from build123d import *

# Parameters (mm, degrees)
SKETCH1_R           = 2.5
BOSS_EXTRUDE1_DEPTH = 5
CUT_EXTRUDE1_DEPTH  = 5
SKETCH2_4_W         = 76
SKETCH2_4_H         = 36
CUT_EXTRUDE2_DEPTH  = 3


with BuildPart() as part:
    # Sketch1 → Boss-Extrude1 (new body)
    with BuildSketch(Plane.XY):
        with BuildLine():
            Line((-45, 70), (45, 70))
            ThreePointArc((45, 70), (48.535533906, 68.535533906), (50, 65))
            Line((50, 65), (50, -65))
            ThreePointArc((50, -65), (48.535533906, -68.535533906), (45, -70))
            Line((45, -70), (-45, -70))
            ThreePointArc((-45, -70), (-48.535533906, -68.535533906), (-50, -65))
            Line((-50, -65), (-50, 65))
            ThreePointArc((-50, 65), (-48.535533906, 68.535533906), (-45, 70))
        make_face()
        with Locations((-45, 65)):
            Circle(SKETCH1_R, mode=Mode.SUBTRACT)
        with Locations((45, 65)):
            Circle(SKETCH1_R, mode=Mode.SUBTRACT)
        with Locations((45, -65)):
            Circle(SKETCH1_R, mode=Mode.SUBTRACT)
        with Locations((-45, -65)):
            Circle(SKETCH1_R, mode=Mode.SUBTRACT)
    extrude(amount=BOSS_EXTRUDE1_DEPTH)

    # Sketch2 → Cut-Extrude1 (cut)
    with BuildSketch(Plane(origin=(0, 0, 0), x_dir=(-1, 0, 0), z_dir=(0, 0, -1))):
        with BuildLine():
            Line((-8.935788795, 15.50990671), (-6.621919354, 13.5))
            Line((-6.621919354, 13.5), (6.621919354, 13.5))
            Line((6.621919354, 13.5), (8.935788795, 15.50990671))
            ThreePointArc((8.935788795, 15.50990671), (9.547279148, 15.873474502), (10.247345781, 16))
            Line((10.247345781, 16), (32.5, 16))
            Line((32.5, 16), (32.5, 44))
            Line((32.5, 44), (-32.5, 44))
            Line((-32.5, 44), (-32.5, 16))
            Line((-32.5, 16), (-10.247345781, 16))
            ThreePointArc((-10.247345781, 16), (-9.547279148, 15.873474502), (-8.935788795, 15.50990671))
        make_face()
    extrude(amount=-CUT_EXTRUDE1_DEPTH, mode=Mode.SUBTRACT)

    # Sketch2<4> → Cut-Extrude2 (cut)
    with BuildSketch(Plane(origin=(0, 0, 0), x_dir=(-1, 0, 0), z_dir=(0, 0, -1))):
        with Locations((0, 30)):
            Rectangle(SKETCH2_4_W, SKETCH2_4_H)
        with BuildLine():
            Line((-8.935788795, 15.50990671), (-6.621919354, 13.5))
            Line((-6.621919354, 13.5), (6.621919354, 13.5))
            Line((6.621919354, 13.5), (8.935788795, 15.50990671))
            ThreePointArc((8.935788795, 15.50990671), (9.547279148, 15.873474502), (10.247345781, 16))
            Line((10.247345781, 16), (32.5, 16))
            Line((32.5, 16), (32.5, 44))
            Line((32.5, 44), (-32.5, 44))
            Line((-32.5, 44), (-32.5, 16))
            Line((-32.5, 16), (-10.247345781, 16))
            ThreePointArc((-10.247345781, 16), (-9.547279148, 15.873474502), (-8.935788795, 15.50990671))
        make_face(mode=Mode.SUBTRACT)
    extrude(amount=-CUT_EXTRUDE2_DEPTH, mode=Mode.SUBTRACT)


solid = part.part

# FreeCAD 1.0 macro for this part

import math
import FreeCAD as App
import Part
import Sketcher

V = App.Vector


def add_polygon(sketch, points):
    """Adds a closed chain of lines whose ends are joined by coincident constraints."""
    first, n = sketch.GeometryCount, len(points)
    for a, b in zip(points, points[1:] + points[:1]):
        sketch.addGeometry(Part.LineSegment(App.Vector(*a, 0), App.Vector(*b, 0)), False)
    for i in range(n):
        sketch.addConstraint(Sketcher.Constraint("Coincident", first + i, 2, first + (i + 1) % n, 1))

doc = App.newDocument("Part")
body = doc.addObject("PartDesign::Body", "Body")

# Sketch on XY plane
sketch1 = body.newObject("Sketcher::SketchObject", "Sketch")
sketch1.AttachmentSupport = (doc.getObject("XY_Plane"), [""])
sketch1.MapMode = "FlatFace"
sketch1.addGeometry([
    Part.LineSegment(V(45, 70, 0), V(-45, 70, 0)),  # 0
    Part.ArcOfCircle(Part.Circle(V(-45, 65, 0), V(0, 0, 1), 5), math.radians(90), math.radians(180)),  # 1
    Part.LineSegment(V(-50, 65, 0), V(-50, -65, 0)),  # 2
    Part.ArcOfCircle(Part.Circle(V(-45, -65, 0), V(0, 0, 1), 5), math.radians(180), math.radians(270)),  # 3
    Part.LineSegment(V(-45, -70, 0), V(45, -70, 0)),  # 4
    Part.ArcOfCircle(Part.Circle(V(45, -65, 0), V(0, 0, 1), 5), math.radians(-90), math.radians(0)),  # 5
    Part.LineSegment(V(50, -65, 0), V(50, 65, 0)),  # 6
    Part.ArcOfCircle(Part.Circle(V(45, 65, 0), V(0, 0, 1), 5), math.radians(0), math.radians(90)),  # 7
    Part.Circle(V(45, -65, 0), V(0, 0, 1), 2.5),  # 8
    Part.Circle(V(-45, -65, 0), V(0, 0, 1), 2.5),  # 9
    Part.Circle(V(45, 65, 0), V(0, 0, 1), 2.5),  # 10
    Part.Circle(V(-45, 65, 0), V(0, 0, 1), 2.5),  # 11
], False)
sketch1.addConstraint([
    Sketcher.Constraint("Tangent", 0, 2, 1, 1),
    Sketcher.Constraint("Tangent", 1, 2, 2, 1),
    Sketcher.Constraint("Tangent", 2, 2, 3, 1),
    Sketcher.Constraint("Tangent", 3, 2, 4, 1),
    Sketcher.Constraint("Tangent", 4, 2, 5, 1),
    Sketcher.Constraint("Tangent", 5, 2, 6, 1),
    Sketcher.Constraint("Tangent", 6, 2, 7, 1),
    Sketcher.Constraint("Tangent", 7, 2, 0, 1),
    Sketcher.Constraint("Horizontal", 0),
    Sketcher.Constraint("Vertical", 2),
    Sketcher.Constraint("Horizontal", 4),
    Sketcher.Constraint("Vertical", 6),
    Sketcher.Constraint("Coincident", 8, 3, 5, 3),
    Sketcher.Constraint("Coincident", 9, 3, 3, 3),
    Sketcher.Constraint("Coincident", 10, 3, 7, 3),
    Sketcher.Constraint("Coincident", 11, 3, 1, 3),
    Sketcher.Constraint("Equal", 1, 3),
    Sketcher.Constraint("Equal", 3, 5),
    Sketcher.Constraint("Equal", 5, 7),
    Sketcher.Constraint("Equal", 8, 9),
    Sketcher.Constraint("Equal", 9, 10),
    Sketcher.Constraint("Equal", 10, 11),
    Sketcher.Constraint("Symmetric", 1, 3, 5, 3, -1, 1),
    Sketcher.Constraint("Diameter", 8, 5.0),
    Sketcher.Constraint("Radius", 1, 5.0),
    Sketcher.Constraint("DistanceX", 0, 2, 0, 1, 90.0),
    Sketcher.Constraint("DistanceY", 2, 2, 2, 1, 130.0),
])
pad1 = body.newObject("PartDesign::Pad", "Pad")
pad1.Profile = sketch1
pad1.Length = 5

# Sketch on XY plane
sketch2 = body.newObject("Sketcher::SketchObject", "Sketch001")
sketch2.AttachmentSupport = (doc.getObject("XY_Plane"), [""])
sketch2.MapMode = "FlatFace"
sketch2.addGeometry([
    Part.LineSegment(V(8.9, 15.5, 0), V(6.6, 13.5, 0)),  # 0
    Part.LineSegment(V(6.6, 13.5, 0), V(-6.6, 13.5, 0)),  # 1
    Part.LineSegment(V(-6.6, 13.5, 0), V(-8.9, 15.5, 0)),  # 2
    Part.ArcOfCircle(Part.Circle(V(-10.2, 14, 0), V(0, 0, 1), 2), math.radians(49), math.radians(90)),  # 3
    Part.LineSegment(V(-10.2, 16, 0), V(-32.5, 16, 0)),  # 4
    Part.LineSegment(V(-32.5, 16, 0), V(-32.5, 44, 0)),  # 5
    Part.LineSegment(V(-32.5, 44, 0), V(32.5, 44, 0)),  # 6
    Part.LineSegment(V(32.5, 44, 0), V(32.5, 16, 0)),  # 7
    Part.LineSegment(V(32.5, 16, 0), V(10.2, 16, 0)),  # 8
    Part.ArcOfCircle(Part.Circle(V(10.2, 14, 0), V(0, 0, 1), 2), math.radians(90), math.radians(131)),  # 9
], False)
sketch2.addConstraint([
    Sketcher.Constraint("Coincident", 0, 2, 1, 1),
    Sketcher.Constraint("Coincident", 1, 2, 2, 1),
    Sketcher.Constraint("Tangent", 2, 2, 3, 1),
    Sketcher.Constraint("Tangent", 3, 2, 4, 1),
    Sketcher.Constraint("Coincident", 4, 2, 5, 1),
    Sketcher.Constraint("Coincident", 5, 2, 6, 1),
    Sketcher.Constraint("Coincident", 6, 2, 7, 1),
    Sketcher.Constraint("Coincident", 7, 2, 8, 1),
    Sketcher.Constraint("Tangent", 8, 2, 9, 1),
    Sketcher.Constraint("Tangent", 9, 2, 0, 1),
    Sketcher.Constraint("Horizontal", 1),
    Sketcher.Constraint("Horizontal", 4),
    Sketcher.Constraint("Vertical", 5),
    Sketcher.Constraint("Horizontal", 6),
    Sketcher.Constraint("Vertical", 7),
    Sketcher.Constraint("Horizontal", 8),
    Sketcher.Constraint("Equal", 3, 9),
    Sketcher.Constraint("Symmetric", 3, 3, 9, 3, -2),
    Sketcher.Constraint("Horizontal", 2, 2, 9, 2),
    Sketcher.Constraint("Equal", 4, 8),
    Sketcher.Constraint("Radius", 3, 2.0),
    Sketcher.Constraint("DistanceX", 6, 1, 6, 2, 65.0),
    Sketcher.Constraint("DistanceY", 5, 1, 5, 2, 28.0),
    Sketcher.Constraint("DistanceY", -1, 1, 3, 3, 14.0),
    Sketcher.Constraint("DistanceY", -1, 1, 0, 2, 13.5),
    Sketcher.Constraint("DistanceX", 1, 2, 1, 1, 13.243839),
    Sketcher.Constraint("DistanceX", 4, 2, 4, 1, 22.252654),
])
pocket1 = body.newObject("PartDesign::Pocket", "Pocket")
pocket1.Profile = sketch2
pocket1.Length = 5
pocket1.Reversed = True

# Sketch on XY plane
sketch3 = body.newObject("Sketcher::SketchObject", "Sketch002")
sketch3.AttachmentSupport = (doc.getObject("XY_Plane"), [""])
sketch3.MapMode = "FlatFace"
add_polygon(sketch3, [(38, 48), (38, 12), (-38, 12), (-38, 48)])  # lines 0-3
sketch3.addGeometry(Part.LineSegment(V(6.6, 13.5, 0), V(8.9, 15.5, 0)), False)  # 4
sketch3.addGeometry(Part.ArcOfCircle(Part.Circle(V(10.2, 14, 0), V(0, 0, 1), 2), math.radians(90), math.radians(131)), False)  # 5
sketch3.addGeometry(Part.LineSegment(V(10.2, 16, 0), V(32.5, 16, 0)), False)  # 6
sketch3.addGeometry(Part.LineSegment(V(32.5, 16, 0), V(32.5, 44, 0)), False)  # 7
sketch3.addGeometry(Part.LineSegment(V(32.5, 44, 0), V(-32.5, 44, 0)), False)  # 8
sketch3.addGeometry(Part.LineSegment(V(-32.5, 44, 0), V(-32.5, 16, 0)), False)  # 9
sketch3.addGeometry(Part.LineSegment(V(-32.5, 16, 0), V(-10.2, 16, 0)), False)  # 10
sketch3.addGeometry(Part.ArcOfCircle(Part.Circle(V(-10.2, 14, 0), V(0, 0, 1), 2), math.radians(49), math.radians(90)), False)  # 11
sketch3.addGeometry(Part.LineSegment(V(-8.9, 15.5, 0), V(-6.6, 13.5, 0)), False)  # 12
sketch3.addGeometry(Part.LineSegment(V(-6.6, 13.5, 0), V(6.6, 13.5, 0)), False)  # 13
sketch3.addConstraint([
    Sketcher.Constraint("Tangent", 4, 2, 5, 2),
    Sketcher.Constraint("Tangent", 5, 1, 6, 1),
    Sketcher.Constraint("Coincident", 6, 2, 7, 1),
    Sketcher.Constraint("Coincident", 7, 2, 8, 1),
    Sketcher.Constraint("Coincident", 8, 2, 9, 1),
    Sketcher.Constraint("Coincident", 9, 2, 10, 1),
    Sketcher.Constraint("Tangent", 10, 2, 11, 2),
    Sketcher.Constraint("Tangent", 11, 1, 12, 1),
    Sketcher.Constraint("Coincident", 12, 2, 13, 1),
    Sketcher.Constraint("Coincident", 13, 2, 4, 1),
    Sketcher.Constraint("Vertical", 0),
    Sketcher.Constraint("Horizontal", 1),
    Sketcher.Constraint("Vertical", 2),
    Sketcher.Constraint("Horizontal", 3),
    Sketcher.Constraint("Horizontal", 6),
    Sketcher.Constraint("Vertical", 7),
    Sketcher.Constraint("Horizontal", 8),
    Sketcher.Constraint("Vertical", 9),
    Sketcher.Constraint("Horizontal", 10),
    Sketcher.Constraint("Horizontal", 13),
    Sketcher.Constraint("Equal", 5, 11),
    Sketcher.Constraint("Symmetric", 5, 3, 11, 3, -2),
    Sketcher.Constraint("Horizontal", 4, 2, 11, 1),
    Sketcher.Constraint("Equal", 6, 10),
    Sketcher.Constraint("Radius", 5, 2.0),
    Sketcher.Constraint("DistanceX", 1, 2, 1, 1, 76.0),
    Sketcher.Constraint("DistanceX", 8, 2, 8, 1, 65.0),
    Sketcher.Constraint("DistanceY", 0, 2, 0, 1, 36.0),
    Sketcher.Constraint("DistanceY", 7, 1, 7, 2, 28.0),
    Sketcher.Constraint("DistanceY", -1, 1, 5, 3, 14.0),
    Sketcher.Constraint("DistanceX", -1, 1, 0, 2, 38.0),
    Sketcher.Constraint("DistanceY", -1, 1, 0, 2, 12.0),
    Sketcher.Constraint("DistanceY", -1, 1, 12, 2, 13.5),
    Sketcher.Constraint("DistanceX", 13, 1, 13, 2, 13.243839),
    Sketcher.Constraint("DistanceX", 6, 1, 6, 2, 22.252654),
])
pocket2 = body.newObject("PartDesign::Pocket", "Pocket001")
pocket2.Profile = sketch3
pocket2.Length = 3
pocket2.Reversed = True

doc.recompute()
